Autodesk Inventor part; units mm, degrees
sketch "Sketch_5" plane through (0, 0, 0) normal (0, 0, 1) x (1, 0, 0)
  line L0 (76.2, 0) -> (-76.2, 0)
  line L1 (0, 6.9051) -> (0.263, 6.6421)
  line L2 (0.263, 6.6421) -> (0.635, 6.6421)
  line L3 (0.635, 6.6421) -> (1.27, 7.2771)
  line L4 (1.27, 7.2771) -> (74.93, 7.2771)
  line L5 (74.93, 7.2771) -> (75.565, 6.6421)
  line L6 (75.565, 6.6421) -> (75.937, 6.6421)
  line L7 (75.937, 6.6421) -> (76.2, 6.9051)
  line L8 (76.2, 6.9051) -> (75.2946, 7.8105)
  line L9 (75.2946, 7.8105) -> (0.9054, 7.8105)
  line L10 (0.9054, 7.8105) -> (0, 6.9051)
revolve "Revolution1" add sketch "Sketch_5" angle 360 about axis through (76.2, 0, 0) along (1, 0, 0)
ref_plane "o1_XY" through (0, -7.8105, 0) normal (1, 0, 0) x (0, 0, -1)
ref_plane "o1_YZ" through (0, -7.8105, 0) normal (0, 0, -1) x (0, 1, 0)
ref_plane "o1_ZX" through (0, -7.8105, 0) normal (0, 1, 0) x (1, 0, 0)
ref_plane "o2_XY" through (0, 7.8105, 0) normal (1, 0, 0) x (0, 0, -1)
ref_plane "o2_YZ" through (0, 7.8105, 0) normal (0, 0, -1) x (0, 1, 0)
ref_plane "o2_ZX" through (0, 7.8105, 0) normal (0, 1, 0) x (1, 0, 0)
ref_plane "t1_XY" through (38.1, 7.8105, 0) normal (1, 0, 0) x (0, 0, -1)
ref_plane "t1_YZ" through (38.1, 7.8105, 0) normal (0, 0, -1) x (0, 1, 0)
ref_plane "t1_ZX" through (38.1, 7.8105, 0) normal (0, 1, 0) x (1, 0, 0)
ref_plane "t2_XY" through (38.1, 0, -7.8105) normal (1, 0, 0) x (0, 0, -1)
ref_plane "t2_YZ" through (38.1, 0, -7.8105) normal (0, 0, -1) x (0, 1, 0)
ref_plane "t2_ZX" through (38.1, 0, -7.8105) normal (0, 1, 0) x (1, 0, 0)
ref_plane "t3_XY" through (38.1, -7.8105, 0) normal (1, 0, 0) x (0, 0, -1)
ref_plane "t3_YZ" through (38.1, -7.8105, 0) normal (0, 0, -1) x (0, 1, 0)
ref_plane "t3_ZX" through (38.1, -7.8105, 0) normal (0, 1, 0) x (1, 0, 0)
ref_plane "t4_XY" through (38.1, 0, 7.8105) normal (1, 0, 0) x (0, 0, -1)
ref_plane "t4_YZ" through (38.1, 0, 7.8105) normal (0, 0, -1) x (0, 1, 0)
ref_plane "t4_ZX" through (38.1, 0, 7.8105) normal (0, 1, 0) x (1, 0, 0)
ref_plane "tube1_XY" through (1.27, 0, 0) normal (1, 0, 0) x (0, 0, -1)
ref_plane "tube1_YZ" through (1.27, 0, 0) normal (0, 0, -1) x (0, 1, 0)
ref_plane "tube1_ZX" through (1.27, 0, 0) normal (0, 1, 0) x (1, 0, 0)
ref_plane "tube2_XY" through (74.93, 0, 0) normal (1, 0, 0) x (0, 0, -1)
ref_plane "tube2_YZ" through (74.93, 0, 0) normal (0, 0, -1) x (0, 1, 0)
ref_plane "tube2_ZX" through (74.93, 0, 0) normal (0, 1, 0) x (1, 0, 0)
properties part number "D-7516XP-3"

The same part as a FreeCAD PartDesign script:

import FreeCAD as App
import Part
import Sketcher

V = App.Vector
Q = App.Units.Quantity

doc = App.newDocument("Part")
body = doc.addObject("PartDesign::Body", "Body")

# Sketch on XY plane
sketch1 = body.newObject("Sketcher::SketchObject", "Sketch")
sketch1.AttachmentSupport = (doc.getObject("XY_Plane"), [""])
sketch1.MapMode = "FlatFace"
sketch1.addGeometry([
    Part.LineSegment(V(0.91, 7.81, 0), V(0, 6.91, 0)),  # 0
    Part.LineSegment(V(0, 6.91, 0), V(0.26, 6.64, 0)),  # 1
    Part.LineSegment(V(0.26, 6.64, 0), V(0.64, 6.64, 0)),  # 2
    Part.LineSegment(V(0.64, 6.64, 0), V(1.27, 7.28, 0)),  # 3
    Part.LineSegment(V(1.27, 7.28, 0), V(74.93, 7.28, 0)),  # 4
    Part.LineSegment(V(74.93, 7.28, 0), V(75.56, 6.64, 0)),  # 5
    Part.LineSegment(V(75.56, 6.64, 0), V(75.94, 6.64, 0)),  # 6
    Part.LineSegment(V(75.94, 6.64, 0), V(76.2, 6.91, 0)),  # 7
    Part.LineSegment(V(76.2, 6.91, 0), V(75.29, 7.81, 0)),  # 8
    Part.LineSegment(V(75.29, 7.81, 0), V(0.91, 7.81, 0)),  # 9
], False)
sketch1.addConstraint([
    Sketcher.Constraint("Coincident", 0, 2, 1, 1),
    Sketcher.Constraint("Coincident", 1, 2, 2, 1),
    Sketcher.Constraint("Coincident", 2, 2, 3, 1),
    Sketcher.Constraint("Coincident", 3, 2, 4, 1),
    Sketcher.Constraint("Coincident", 4, 2, 5, 1),
    Sketcher.Constraint("Coincident", 5, 2, 6, 1),
    Sketcher.Constraint("Coincident", 6, 2, 7, 1),
    Sketcher.Constraint("Coincident", 7, 2, 8, 1),
    Sketcher.Constraint("Coincident", 8, 2, 9, 1),
    Sketcher.Constraint("Coincident", 9, 2, 0, 1),
    Sketcher.Constraint("Horizontal", 2),
    Sketcher.Constraint("Horizontal", 4),
    Sketcher.Constraint("Horizontal", 6),
    Sketcher.Constraint("Horizontal", 9),
    Sketcher.Constraint("PointOnObject", 0, 2, -2),
    Sketcher.Constraint("Perpendicular", 0, 1),
    Sketcher.Constraint("Perpendicular", 1, 3),
    Sketcher.Constraint("Perpendicular", 3, 5),
    Sketcher.Constraint("Perpendicular", 5, 7),
    Sketcher.Constraint("Perpendicular", 7, 8),
    Sketcher.Constraint("Horizontal", 2, 2, 5, 2),
    Sketcher.Constraint("Horizontal", 0, 2, 7, 2),
    Sketcher.Constraint("Equal", 2, 6),
    Sketcher.Constraint("Equal", 3, 5),
    Sketcher.Constraint("DistanceX", 4, 1, 4, 2, Q("2.9 in")),
    Sketcher.Constraint("DistanceX", -1, 1, 7, 2, Q("3 in")),
    Sketcher.Constraint("DistanceX", 2, 2, 5, 2, Q("2.95 in")),
    Sketcher.Constraint("DistanceX", 9, 2, 9, 1, Q("2.9287 in")),
    Sketcher.Constraint("DistanceY", 4, 2, 8, 2, Q("0.021 in")),
    Sketcher.Constraint("DistanceY", -1, 1, 1, 2, Q("0.2615 in")),
])
revolution = body.newObject("PartDesign::Revolution", "Revolution")
revolution.Profile = sketch1
revolution.ReferenceAxis = (sketch1, ["H_Axis"])
revolution.Angle = 360

doc.recompute()
